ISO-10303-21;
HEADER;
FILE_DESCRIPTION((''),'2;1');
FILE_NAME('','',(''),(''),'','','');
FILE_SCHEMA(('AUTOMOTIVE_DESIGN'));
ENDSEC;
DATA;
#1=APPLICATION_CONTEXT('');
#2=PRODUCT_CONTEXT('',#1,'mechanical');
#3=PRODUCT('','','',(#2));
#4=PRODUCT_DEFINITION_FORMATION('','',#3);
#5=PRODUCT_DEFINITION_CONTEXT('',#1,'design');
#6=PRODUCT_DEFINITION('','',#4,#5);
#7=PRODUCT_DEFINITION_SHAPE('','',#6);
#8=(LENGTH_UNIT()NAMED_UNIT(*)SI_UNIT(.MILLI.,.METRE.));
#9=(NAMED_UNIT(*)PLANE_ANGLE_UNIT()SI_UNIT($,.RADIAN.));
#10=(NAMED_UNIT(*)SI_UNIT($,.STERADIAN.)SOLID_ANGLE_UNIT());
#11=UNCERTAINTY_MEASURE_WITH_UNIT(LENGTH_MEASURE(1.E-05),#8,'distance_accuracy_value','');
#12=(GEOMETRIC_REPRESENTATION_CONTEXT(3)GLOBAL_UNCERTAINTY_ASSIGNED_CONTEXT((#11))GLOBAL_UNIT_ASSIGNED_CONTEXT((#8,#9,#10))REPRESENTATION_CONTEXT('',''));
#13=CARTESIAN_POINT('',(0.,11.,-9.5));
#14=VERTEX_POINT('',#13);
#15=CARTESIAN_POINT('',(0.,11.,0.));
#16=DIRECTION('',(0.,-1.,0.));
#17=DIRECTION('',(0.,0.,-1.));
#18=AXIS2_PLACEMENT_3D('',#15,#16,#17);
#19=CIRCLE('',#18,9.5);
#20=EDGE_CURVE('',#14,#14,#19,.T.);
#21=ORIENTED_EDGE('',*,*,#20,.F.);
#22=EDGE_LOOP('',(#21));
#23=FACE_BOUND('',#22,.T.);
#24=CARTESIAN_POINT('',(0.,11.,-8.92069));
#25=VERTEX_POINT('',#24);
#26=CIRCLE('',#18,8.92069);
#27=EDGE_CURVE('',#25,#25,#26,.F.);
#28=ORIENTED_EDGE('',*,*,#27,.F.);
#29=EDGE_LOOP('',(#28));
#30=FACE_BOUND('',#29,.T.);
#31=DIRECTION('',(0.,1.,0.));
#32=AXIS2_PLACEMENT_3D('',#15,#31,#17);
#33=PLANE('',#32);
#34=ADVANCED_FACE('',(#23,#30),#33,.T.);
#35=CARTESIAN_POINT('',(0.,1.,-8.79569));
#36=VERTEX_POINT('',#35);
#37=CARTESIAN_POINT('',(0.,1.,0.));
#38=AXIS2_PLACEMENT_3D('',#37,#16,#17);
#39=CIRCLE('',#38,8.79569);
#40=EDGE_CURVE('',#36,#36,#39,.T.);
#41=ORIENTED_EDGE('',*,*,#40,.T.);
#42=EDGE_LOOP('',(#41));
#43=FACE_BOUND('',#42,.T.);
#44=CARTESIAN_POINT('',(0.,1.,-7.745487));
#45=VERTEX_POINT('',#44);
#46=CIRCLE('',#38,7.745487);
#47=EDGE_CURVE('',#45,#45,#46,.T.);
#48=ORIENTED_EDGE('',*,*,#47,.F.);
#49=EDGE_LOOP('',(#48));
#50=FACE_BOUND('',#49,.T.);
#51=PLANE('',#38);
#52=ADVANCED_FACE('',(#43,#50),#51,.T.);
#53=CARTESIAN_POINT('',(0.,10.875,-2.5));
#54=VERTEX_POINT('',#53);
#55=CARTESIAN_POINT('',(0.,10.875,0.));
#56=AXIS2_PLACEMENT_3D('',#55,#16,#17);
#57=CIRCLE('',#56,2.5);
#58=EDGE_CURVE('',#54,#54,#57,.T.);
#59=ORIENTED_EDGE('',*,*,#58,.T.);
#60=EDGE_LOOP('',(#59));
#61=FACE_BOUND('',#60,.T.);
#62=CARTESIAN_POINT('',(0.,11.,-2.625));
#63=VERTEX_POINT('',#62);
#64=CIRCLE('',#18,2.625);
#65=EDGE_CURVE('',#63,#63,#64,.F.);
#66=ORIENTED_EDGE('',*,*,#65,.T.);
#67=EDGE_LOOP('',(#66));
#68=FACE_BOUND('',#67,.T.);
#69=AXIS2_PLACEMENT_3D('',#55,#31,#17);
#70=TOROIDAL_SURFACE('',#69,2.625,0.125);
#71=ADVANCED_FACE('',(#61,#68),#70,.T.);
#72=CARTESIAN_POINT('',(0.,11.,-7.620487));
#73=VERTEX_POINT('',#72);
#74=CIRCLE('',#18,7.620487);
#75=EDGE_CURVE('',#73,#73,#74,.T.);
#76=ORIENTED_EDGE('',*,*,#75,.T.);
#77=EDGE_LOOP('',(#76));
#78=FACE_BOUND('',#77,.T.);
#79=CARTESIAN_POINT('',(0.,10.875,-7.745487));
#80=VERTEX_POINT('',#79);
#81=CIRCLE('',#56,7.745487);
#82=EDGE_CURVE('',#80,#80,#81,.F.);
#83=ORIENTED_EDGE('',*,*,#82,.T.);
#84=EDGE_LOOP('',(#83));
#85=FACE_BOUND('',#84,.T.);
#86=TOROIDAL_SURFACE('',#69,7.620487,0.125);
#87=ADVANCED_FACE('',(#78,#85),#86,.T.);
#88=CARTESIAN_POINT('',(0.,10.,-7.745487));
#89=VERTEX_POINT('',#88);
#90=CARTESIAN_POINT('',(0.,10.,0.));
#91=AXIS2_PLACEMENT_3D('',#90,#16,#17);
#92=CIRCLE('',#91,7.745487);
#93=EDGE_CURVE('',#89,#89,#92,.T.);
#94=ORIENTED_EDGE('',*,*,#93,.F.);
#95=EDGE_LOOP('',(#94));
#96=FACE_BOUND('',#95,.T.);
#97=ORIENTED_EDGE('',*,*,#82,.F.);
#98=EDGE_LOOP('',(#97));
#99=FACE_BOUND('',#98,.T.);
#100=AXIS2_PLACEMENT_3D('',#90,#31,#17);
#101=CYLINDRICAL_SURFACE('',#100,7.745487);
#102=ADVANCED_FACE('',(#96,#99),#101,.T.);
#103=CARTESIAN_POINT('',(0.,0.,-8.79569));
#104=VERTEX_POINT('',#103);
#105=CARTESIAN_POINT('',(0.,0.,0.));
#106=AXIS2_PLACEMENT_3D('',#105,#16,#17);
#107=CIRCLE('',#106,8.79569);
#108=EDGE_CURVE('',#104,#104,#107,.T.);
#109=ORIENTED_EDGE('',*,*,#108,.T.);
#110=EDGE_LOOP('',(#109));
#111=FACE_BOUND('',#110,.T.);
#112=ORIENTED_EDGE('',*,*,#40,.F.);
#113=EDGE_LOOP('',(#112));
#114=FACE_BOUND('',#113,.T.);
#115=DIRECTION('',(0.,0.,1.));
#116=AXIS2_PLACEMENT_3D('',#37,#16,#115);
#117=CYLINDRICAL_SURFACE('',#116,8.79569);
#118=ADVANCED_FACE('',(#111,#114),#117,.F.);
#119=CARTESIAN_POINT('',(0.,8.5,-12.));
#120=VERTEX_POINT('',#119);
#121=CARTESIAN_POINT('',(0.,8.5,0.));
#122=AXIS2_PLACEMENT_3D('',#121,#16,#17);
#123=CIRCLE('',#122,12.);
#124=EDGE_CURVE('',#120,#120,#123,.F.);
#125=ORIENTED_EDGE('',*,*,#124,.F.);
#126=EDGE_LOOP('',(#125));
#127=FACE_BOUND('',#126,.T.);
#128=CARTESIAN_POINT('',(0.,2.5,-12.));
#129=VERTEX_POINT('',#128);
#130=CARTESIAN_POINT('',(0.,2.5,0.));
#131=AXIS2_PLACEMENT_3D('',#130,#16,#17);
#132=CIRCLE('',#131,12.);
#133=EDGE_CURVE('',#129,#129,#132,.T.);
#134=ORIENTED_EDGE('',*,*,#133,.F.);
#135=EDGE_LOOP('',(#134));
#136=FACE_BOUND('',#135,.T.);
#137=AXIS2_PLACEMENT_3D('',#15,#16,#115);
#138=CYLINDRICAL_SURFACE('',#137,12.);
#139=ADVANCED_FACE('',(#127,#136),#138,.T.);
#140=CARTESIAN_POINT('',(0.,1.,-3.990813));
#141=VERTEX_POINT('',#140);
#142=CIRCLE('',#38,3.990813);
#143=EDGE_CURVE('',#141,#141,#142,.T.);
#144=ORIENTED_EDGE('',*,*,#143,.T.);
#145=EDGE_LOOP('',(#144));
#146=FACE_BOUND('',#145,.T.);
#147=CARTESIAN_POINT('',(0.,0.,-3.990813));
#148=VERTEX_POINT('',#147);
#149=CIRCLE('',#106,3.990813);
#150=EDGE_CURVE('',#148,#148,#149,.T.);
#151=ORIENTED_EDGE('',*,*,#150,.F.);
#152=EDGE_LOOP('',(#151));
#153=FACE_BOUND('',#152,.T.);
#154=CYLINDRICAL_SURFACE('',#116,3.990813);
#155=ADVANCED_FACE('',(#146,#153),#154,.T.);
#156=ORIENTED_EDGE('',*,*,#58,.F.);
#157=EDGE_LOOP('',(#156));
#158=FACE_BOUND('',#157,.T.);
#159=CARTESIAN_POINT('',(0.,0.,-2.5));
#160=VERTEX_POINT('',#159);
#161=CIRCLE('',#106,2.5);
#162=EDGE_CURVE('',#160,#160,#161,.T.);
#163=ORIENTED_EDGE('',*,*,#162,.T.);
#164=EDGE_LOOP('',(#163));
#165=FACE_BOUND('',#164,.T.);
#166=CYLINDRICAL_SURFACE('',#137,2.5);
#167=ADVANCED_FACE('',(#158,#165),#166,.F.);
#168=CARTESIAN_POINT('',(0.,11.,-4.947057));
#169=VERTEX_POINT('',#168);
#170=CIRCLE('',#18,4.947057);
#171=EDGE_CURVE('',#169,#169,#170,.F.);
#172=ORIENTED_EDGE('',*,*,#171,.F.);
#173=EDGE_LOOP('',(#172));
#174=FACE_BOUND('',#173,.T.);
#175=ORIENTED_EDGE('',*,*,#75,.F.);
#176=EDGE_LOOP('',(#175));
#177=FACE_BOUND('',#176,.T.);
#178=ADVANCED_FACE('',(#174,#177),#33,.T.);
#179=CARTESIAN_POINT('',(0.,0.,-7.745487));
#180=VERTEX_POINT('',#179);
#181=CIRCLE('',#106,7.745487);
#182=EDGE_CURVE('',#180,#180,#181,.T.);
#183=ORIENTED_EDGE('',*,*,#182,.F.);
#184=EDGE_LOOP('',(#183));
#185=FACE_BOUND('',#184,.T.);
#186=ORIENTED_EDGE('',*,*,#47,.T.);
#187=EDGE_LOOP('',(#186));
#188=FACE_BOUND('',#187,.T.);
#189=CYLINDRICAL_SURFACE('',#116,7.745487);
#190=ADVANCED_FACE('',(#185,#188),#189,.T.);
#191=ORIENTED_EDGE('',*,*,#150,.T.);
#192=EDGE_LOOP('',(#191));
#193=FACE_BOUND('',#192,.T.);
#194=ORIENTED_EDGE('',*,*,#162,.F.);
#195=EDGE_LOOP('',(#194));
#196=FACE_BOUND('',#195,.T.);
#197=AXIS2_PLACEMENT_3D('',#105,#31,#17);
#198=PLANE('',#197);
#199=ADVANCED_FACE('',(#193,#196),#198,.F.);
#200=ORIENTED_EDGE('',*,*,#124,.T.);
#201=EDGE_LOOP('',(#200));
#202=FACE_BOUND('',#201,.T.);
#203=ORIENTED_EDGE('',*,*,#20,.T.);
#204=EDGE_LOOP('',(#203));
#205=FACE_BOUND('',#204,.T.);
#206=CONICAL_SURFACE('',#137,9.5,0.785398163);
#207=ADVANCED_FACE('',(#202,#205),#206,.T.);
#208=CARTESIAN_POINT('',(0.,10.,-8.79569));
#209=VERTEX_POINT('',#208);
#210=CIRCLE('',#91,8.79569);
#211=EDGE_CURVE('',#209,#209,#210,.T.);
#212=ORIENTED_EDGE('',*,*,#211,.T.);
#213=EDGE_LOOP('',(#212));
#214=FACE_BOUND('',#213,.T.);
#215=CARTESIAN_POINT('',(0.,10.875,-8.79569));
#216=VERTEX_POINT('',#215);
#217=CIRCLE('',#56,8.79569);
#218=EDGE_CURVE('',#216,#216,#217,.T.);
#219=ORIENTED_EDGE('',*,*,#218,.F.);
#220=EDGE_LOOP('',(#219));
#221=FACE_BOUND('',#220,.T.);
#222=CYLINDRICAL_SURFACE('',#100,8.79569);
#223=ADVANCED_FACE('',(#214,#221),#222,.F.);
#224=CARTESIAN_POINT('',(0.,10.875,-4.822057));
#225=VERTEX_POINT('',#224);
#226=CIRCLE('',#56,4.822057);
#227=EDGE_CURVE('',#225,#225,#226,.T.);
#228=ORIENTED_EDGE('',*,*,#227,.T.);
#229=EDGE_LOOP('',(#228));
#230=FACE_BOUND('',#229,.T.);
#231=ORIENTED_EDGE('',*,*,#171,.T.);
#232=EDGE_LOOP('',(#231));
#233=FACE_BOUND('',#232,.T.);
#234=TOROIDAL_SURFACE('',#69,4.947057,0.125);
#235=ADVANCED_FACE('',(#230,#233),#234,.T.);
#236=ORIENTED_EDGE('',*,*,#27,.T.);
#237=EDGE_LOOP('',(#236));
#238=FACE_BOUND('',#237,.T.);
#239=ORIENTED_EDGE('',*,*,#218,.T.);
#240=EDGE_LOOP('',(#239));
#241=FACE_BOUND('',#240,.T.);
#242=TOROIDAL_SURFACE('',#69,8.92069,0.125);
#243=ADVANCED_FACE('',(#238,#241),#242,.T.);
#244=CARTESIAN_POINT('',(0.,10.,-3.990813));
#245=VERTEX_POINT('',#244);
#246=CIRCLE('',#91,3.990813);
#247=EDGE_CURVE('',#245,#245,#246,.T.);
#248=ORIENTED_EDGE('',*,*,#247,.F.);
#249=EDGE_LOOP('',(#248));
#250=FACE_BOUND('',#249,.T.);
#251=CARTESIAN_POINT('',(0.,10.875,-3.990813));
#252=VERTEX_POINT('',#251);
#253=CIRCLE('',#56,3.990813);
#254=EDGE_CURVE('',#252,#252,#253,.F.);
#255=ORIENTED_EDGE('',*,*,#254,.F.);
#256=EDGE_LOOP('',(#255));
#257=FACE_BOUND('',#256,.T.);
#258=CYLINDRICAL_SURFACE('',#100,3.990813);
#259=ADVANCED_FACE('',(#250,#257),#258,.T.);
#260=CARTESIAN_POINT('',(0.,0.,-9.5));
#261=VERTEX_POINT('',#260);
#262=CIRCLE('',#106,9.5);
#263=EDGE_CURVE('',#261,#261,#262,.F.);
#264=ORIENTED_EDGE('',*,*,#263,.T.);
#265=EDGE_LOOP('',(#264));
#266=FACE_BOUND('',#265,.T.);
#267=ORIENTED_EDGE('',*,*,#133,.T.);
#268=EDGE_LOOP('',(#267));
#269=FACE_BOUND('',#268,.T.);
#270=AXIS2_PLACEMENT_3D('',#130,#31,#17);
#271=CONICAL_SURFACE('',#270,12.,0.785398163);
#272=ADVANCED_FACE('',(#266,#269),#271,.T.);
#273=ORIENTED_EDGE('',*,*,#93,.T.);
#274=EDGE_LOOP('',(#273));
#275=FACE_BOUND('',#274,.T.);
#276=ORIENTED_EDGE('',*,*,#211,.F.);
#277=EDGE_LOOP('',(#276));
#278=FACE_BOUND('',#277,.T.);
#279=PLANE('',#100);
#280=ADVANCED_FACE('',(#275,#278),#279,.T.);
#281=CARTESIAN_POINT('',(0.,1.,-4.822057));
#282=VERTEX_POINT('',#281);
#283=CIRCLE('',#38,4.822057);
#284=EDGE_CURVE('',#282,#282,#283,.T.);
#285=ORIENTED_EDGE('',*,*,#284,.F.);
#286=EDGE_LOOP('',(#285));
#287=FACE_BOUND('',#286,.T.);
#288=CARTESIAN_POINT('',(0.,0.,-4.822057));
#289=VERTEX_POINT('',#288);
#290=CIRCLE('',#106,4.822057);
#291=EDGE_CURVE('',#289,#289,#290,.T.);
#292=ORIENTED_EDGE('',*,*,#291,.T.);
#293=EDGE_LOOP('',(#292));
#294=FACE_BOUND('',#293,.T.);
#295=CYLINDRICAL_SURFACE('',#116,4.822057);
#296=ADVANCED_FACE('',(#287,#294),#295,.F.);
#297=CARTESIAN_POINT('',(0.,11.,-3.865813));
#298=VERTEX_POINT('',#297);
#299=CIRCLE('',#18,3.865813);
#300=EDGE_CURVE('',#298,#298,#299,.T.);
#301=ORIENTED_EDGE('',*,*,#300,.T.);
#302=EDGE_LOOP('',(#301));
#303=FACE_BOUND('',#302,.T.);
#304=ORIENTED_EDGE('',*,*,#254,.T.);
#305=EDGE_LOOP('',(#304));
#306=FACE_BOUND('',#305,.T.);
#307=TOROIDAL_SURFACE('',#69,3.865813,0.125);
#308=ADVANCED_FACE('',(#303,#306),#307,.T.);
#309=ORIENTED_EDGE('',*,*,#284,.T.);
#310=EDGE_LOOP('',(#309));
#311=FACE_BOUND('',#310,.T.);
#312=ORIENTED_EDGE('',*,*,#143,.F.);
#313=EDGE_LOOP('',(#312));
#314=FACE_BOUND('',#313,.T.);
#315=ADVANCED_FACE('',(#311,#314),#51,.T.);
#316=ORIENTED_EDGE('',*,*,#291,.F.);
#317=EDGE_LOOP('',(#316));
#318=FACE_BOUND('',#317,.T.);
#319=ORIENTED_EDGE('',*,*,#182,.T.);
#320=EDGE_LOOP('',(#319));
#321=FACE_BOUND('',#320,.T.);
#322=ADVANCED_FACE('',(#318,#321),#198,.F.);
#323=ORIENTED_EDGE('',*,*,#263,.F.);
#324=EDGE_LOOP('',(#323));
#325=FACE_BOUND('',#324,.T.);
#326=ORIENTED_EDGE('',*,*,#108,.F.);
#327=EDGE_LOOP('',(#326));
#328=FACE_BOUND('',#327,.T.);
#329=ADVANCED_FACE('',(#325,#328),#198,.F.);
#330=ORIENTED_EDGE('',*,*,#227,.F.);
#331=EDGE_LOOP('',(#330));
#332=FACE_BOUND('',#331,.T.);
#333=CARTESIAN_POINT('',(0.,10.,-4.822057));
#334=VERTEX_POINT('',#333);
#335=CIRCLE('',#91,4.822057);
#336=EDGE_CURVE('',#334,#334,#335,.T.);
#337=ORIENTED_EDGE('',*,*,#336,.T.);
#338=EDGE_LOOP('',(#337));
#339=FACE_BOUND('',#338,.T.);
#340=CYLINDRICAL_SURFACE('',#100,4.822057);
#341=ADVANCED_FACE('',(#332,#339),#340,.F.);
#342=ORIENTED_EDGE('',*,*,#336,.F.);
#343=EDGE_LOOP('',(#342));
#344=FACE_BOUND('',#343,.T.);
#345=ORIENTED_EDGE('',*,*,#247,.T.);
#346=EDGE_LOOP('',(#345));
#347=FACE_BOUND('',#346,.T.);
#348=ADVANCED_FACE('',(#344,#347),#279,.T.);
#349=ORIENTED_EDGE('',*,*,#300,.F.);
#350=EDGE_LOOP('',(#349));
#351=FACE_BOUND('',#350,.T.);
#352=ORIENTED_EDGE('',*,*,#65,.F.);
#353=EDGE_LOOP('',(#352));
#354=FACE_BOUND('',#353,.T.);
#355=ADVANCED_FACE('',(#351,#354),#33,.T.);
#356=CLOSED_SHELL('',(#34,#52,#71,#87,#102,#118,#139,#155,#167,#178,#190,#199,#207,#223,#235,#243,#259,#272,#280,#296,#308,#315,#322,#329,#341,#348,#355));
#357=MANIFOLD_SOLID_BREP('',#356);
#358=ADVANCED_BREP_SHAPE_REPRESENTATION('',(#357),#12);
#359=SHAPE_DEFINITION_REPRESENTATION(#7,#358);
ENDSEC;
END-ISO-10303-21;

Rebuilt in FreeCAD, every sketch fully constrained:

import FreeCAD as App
import Part
import Sketcher
from FreeCAD import Vector


def edges_at(feature, points):
    """Names of the edges that pass closest to the given points."""
    edges = feature.Shape.Edges
    near = lambda p: min(range(len(edges)), key=lambda i: edges[i].distToShape(Part.Vertex(*p))[0])
    return sorted({f"Edge{near(p) + 1}" for p in points})

doc = App.newDocument("Part")
params = doc.addObject("Spreadsheet::Sheet", "Params")
for row, (alias, value) in enumerate([
    ("sketch1_diameter", "24 mm"),
    ("sketch1_diameter2", "5 mm"),
    ("pad1_length", "11 mm"),
    ("pocket1_length", "1 mm"),
    ("chamfer_size", "2.5 mm"),
    ("fillet_radius", "0.125 mm"),
], start=1):
    params.set(f"A{row}", alias)
    params.set(f"B{row}", "=" + value)
    params.setAlias(f"B{row}", alias)

body = doc.addObject("PartDesign::Body", "Body")

# Sketch on XZ plane
sketch1 = body.newObject("Sketcher::SketchObject", "Sketch")
sketch1.AttachmentSupport = (doc.getObject("XZ_Plane"), [""])
sketch1.MapMode = "FlatFace"
sketch1.addGeometry([
    Part.Circle(Vector(0, 0, 0), Vector(0, 0, 1), 12),
    Part.Circle(Vector(0, 0, 0), Vector(0, 0, 1), 2.5),
], False)
sketch1.addConstraint([
    Sketcher.Constraint("Coincident", 0, 3, -1, 1),
    Sketcher.Constraint("Coincident", 1, 3, -1, 1),
    Sketcher.Constraint("Diameter", 0, 24.0),
    Sketcher.Constraint("Diameter", 1, 5.0),
])
sketch1.setExpression("Constraints[2]", "Params.sketch1_diameter")
sketch1.setExpression("Constraints[3]", "Params.sketch1_diameter2")
pad1 = body.newObject("PartDesign::Pad", "Pad")
pad1.Profile = sketch1
pad1.setExpression("Length", "Params.pad1_length")
pad1.Reversed = True

# Sketch on XZ plane
sketch2 = body.newObject("Sketcher::SketchObject", "Sketch001")
sketch2.AttachmentSupport = (doc.getObject("XZ_Plane"), [""])
sketch2.MapMode = "FlatFace"
sketch2.AttachmentOffset = App.Placement(Vector(0, 0, -11), App.Rotation())
sketch2.addGeometry([
    Part.Circle(Vector(0, 0, 0), Vector(0, 0, 1), 8.8),
    Part.Circle(Vector(0, 0, 0), Vector(0, 0, 1), 7.7),
    Part.Circle(Vector(0, 0, 0), Vector(0, 0, 1), 4.8),
    Part.Circle(Vector(0, 0, 0), Vector(0, 0, 1), 4),
], False)
sketch2.addConstraint([
    Sketcher.Constraint("Coincident", 0, 3, -1, 1),
    Sketcher.Constraint("Coincident", 1, 3, -1, 1),
    Sketcher.Constraint("Coincident", 2, 3, -1, 1),
    Sketcher.Constraint("Coincident", 3, 3, -1, 1),
    Sketcher.Constraint("Diameter", 0, 17.59138),
    Sketcher.Constraint("Diameter", 1, 15.490973),
    Sketcher.Constraint("Diameter", 2, 9.644114),
    Sketcher.Constraint("Diameter", 3, 7.981626),
])
pocket1 = body.newObject("PartDesign::Pocket", "Pocket")
pocket1.Profile = sketch2
pocket1.setExpression("Length", "Params.pocket1_length")
pocket1.Reversed = True
doc.recompute()

chamfer = body.newObject("PartDesign::Chamfer", "Chamfer")
chamfer.Base = (pocket1, edges_at(pocket1, [(0, 0, -12), (0, 11, -12)]))
chamfer.setExpression("Size", "Params.chamfer_size")
doc.recompute()

fillet = body.newObject("PartDesign::Fillet", "Fillet")
fillet.Base = (chamfer, edges_at(chamfer, [
    (0, 11, -3.991),
    (0, 11, -4.822),
    (0, 11, -7.745),
    (0, 11, -8.796),
    (0, 11, -2.5),
]))
fillet.setExpression("Radius", "Params.fillet_radius")
doc.recompute()

datumplane = body.newObject("PartDesign::Plane", "DatumPlane")
datumplane.AttachmentSupport = (doc.getObject("XZ_Plane"), [""])
datumplane.MapMode = "FlatFace"
datumplane.AttachmentOffset = App.Placement(Vector(0, 0, -5.5), App.Rotation())
mirrored = body.newObject("PartDesign::Mirrored", "Mirrored")
mirrored.Originals = [pocket1]
mirrored.MirrorPlane = (datumplane, [""])
body.Tip = mirrored

doc.recompute()
